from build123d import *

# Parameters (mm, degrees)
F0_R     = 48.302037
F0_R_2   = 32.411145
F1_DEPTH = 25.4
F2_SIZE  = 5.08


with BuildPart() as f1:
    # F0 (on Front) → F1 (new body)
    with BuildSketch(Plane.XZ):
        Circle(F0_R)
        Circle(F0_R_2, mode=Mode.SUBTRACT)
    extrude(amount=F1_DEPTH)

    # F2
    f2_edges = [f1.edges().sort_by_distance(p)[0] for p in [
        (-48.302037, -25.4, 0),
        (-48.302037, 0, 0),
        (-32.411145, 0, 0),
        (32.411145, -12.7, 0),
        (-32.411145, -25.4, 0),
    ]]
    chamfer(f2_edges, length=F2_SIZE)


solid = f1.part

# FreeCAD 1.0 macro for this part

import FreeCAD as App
import Part
import Sketcher
Q = App.Units.Quantity

doc = App.newDocument("Part")
body = doc.addObject("PartDesign::Body", "Body")

sketch1 = body.newObject("Sketcher::SketchObject", "Sketch")
sketch1.AttachmentSupport = (doc.getObject("XZ_Plane"), [""])
sketch1.MapMode = "FlatFace"
sketch1.addGeometry(Part.Circle(App.Vector(0, 0, 0), App.Vector(0, 0, 1), 48), False)
sketch1.addGeometry(Part.Circle(App.Vector(0, 0, 0), App.Vector(0, 0, 1), 32), False)
sketch1.addConstraint(Sketcher.Constraint("Coincident", 0, 3, -1, 1))
sketch1.addConstraint(Sketcher.Constraint("Coincident", 1, 3, -1, 1))
sketch1.addConstraint(Sketcher.Constraint("Diameter", 1, Q("64.82229 mm")))
sketch1.addConstraint(Sketcher.Constraint("Diameter", 0, Q("96.604074 mm")))
pad1 = body.newObject("PartDesign::Pad", "Pad")
pad1.Profile = sketch1
pad1.Length = Q("1 in")
doc.recompute()

chamfer = body.newObject("PartDesign::Chamfer", "Chamfer")
chamfer.Base = (pad1, ["Edge1"])
chamfer.UseAllEdges = True
chamfer.Size = Q("0.2 in")

doc.recompute()
